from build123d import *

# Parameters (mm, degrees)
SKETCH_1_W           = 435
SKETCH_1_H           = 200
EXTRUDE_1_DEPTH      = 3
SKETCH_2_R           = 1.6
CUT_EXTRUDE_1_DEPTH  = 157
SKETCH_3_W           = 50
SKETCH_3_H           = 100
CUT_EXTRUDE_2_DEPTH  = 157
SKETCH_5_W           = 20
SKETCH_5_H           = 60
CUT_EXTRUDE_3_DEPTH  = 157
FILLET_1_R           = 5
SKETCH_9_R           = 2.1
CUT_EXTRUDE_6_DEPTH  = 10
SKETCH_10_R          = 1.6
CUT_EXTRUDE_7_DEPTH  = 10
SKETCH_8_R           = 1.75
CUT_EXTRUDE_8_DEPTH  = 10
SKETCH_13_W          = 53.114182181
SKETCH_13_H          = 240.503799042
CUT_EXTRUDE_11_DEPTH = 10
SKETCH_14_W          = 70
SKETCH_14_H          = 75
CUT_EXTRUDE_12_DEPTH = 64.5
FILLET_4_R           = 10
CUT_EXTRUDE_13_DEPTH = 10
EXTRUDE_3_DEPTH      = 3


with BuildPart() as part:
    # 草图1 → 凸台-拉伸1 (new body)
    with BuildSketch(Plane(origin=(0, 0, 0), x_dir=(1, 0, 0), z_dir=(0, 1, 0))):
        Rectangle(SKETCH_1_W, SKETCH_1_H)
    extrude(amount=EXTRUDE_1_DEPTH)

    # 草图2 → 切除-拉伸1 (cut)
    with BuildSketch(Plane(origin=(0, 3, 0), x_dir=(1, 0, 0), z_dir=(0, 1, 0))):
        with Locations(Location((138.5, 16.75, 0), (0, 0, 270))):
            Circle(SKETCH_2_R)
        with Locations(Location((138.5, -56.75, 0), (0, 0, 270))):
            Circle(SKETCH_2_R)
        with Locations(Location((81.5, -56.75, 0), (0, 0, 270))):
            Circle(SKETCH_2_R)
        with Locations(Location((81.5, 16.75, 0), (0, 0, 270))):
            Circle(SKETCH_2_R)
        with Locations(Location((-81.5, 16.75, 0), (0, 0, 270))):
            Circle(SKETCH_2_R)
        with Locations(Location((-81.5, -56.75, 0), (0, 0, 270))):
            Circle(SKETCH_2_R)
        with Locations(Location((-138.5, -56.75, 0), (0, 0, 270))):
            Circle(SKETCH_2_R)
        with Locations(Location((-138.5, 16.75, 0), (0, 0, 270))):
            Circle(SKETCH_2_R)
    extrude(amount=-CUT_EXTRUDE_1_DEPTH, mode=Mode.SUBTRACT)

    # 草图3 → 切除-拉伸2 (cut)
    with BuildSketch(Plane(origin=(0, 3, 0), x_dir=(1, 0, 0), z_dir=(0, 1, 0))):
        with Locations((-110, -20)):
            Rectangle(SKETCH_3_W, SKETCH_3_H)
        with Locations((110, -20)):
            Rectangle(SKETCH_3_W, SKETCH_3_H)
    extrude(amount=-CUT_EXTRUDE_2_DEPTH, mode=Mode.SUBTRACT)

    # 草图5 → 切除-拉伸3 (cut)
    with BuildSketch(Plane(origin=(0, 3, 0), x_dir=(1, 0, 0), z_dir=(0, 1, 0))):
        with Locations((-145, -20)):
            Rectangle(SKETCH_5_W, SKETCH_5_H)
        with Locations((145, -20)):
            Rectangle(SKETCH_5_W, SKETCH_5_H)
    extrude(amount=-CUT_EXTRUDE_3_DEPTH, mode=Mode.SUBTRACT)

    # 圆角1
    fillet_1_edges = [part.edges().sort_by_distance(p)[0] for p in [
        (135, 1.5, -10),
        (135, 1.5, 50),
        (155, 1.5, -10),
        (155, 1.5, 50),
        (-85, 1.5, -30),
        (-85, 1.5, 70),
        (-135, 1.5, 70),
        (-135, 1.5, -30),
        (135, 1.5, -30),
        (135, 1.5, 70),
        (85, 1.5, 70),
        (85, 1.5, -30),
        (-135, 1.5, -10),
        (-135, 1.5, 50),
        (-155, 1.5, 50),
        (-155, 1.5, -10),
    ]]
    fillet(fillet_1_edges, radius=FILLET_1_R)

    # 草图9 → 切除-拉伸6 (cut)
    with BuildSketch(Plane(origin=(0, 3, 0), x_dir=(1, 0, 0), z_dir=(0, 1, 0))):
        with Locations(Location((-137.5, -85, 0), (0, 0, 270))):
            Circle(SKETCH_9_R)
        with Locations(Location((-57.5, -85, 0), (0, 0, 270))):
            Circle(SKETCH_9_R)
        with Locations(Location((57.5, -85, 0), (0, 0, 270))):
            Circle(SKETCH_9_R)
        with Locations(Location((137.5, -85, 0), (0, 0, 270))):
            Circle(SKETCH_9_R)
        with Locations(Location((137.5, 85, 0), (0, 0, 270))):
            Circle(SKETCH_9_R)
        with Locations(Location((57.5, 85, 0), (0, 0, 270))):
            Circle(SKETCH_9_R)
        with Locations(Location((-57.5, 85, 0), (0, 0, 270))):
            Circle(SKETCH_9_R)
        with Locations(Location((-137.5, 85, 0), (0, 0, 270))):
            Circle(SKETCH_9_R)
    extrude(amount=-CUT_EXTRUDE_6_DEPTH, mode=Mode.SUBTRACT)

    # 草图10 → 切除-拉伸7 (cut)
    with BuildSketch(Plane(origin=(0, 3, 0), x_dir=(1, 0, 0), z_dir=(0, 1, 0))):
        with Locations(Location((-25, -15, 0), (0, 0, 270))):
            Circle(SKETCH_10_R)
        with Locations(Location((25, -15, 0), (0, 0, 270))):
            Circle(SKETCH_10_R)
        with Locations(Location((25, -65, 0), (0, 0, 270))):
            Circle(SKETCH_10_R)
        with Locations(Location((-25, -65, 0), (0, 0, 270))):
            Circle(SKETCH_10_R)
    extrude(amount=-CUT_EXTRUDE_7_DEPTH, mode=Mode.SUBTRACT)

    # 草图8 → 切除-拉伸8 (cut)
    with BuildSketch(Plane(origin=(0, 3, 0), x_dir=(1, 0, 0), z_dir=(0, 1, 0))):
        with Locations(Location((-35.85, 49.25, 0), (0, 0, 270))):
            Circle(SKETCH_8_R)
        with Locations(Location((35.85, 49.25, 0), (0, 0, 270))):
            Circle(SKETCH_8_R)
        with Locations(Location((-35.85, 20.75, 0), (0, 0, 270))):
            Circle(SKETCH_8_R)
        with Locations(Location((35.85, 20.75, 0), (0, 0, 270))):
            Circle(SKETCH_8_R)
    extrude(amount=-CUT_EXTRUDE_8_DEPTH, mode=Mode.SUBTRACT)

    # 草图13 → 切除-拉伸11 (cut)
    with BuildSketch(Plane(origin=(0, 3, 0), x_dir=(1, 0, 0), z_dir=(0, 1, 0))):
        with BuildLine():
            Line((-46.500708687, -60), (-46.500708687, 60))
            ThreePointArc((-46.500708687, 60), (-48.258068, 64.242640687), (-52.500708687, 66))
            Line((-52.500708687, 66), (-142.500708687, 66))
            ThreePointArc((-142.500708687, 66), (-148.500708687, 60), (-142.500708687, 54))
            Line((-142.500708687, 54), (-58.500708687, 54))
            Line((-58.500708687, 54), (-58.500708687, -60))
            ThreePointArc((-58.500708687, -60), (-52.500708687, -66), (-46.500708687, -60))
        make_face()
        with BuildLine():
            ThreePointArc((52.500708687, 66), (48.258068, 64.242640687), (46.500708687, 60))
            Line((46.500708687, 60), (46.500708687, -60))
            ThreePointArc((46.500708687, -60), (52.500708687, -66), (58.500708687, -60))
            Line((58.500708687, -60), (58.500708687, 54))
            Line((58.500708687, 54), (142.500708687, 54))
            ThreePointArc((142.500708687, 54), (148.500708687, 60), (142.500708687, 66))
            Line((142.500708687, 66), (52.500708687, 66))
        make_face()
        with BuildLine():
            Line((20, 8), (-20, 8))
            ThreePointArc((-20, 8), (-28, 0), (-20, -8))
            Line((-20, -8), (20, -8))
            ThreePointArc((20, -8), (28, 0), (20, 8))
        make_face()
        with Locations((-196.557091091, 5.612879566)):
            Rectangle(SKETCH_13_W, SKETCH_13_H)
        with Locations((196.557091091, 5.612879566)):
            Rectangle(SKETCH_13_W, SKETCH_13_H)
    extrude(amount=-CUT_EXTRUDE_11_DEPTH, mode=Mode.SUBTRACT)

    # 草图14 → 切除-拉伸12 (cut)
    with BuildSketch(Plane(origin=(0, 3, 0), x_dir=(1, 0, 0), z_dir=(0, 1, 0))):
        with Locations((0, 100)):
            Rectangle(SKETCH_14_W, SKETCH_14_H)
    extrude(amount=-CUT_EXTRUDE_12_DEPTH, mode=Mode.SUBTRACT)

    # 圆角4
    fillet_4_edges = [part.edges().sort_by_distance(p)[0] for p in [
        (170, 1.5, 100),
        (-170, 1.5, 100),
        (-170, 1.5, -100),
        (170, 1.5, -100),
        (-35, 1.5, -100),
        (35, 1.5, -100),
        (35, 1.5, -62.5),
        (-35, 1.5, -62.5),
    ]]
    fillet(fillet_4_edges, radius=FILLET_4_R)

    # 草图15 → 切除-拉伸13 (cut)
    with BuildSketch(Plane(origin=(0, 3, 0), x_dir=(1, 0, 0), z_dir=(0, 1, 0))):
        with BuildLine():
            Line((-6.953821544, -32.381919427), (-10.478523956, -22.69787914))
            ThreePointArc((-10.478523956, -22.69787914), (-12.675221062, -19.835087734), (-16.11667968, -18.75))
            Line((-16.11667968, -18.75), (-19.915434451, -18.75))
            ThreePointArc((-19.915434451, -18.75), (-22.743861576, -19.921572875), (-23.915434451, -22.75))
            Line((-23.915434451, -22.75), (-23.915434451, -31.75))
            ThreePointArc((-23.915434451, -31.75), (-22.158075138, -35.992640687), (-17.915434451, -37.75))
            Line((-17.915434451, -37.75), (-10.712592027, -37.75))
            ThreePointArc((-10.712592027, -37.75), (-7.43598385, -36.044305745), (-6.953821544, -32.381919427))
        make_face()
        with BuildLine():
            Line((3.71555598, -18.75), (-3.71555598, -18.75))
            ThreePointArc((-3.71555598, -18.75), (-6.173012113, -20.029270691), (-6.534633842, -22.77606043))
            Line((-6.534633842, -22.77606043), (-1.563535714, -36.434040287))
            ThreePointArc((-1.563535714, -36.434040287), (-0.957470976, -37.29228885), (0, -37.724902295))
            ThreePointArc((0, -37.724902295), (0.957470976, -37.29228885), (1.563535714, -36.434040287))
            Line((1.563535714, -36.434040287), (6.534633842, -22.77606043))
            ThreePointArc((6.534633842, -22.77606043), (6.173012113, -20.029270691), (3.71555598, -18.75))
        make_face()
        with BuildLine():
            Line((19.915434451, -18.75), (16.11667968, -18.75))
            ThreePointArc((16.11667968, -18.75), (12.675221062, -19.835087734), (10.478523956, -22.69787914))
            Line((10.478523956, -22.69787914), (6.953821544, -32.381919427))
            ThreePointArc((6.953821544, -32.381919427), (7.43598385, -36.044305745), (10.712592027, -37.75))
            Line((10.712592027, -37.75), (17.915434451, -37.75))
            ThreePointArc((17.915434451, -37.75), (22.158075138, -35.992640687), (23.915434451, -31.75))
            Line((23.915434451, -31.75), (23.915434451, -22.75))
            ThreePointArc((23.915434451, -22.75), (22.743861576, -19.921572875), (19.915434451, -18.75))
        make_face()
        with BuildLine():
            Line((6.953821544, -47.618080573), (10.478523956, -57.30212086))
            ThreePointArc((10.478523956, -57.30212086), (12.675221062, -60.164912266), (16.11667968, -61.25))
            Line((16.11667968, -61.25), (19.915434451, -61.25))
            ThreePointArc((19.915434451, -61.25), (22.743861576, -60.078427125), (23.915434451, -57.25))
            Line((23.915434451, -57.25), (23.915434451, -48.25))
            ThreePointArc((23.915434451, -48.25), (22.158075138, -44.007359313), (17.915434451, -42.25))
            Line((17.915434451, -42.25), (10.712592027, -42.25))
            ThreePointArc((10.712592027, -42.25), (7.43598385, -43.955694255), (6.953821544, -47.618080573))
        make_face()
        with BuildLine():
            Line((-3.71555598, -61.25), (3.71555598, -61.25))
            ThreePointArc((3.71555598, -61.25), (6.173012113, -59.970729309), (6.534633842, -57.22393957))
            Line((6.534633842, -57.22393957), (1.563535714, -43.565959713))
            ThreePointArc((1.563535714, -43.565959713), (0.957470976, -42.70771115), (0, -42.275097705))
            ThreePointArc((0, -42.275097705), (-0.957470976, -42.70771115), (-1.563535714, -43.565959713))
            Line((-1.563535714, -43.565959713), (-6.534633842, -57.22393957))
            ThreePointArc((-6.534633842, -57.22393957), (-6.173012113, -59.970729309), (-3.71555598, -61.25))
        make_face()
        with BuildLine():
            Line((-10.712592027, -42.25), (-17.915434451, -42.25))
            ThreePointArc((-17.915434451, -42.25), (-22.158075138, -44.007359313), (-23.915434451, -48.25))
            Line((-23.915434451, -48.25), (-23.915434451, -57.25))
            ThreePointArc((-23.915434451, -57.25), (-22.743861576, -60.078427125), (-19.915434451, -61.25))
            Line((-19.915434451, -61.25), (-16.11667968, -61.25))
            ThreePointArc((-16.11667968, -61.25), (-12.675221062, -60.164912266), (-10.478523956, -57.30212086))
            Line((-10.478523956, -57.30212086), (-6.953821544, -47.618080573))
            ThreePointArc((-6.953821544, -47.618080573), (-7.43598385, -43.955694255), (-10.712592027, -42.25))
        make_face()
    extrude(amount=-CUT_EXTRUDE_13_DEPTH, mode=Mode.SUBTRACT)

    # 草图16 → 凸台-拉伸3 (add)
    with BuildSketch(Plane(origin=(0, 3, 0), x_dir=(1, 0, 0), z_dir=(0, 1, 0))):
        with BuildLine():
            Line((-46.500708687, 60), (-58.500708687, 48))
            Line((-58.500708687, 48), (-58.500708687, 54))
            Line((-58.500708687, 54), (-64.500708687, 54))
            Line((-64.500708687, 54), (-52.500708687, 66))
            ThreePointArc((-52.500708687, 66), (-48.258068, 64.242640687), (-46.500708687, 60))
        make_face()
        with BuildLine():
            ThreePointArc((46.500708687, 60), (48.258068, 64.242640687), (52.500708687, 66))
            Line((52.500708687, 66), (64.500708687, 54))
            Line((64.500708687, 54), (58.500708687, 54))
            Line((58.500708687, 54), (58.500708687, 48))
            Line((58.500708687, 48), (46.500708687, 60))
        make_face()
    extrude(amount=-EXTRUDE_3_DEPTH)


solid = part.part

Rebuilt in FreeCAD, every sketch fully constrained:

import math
import FreeCAD as App
import Part
import Sketcher
Q = App.Units.Quantity


def edges_at(feature, points):
    """Names of the edges that pass closest to the given points."""
    edges = feature.Shape.Edges
    near = lambda p: min(range(len(edges)), key=lambda i: edges[i].distToShape(Part.Vertex(*p))[0])
    return sorted({f"Edge{near(p) + 1}" for p in points})


def add_polygon(sketch, points):
    """Adds a closed chain of lines whose ends are joined by coincident constraints."""
    first, n = sketch.GeometryCount, len(points)
    for a, b in zip(points, points[1:] + points[:1]):
        sketch.addGeometry(Part.LineSegment(App.Vector(*a, 0), App.Vector(*b, 0)), False)
    for i in range(n):
        sketch.addConstraint(Sketcher.Constraint("Coincident", first + i, 2, first + (i + 1) % n, 1))

doc = App.newDocument("Part")
body = doc.addObject("PartDesign::Body", "Body")

sketch1 = doc.addObject("Sketcher::SketchObject", "Sketch")
body.addObject(sketch1)
sketch1.AttachmentSupport = (doc.XZ_Plane, [""])
sketch1.MapMode = "FlatFace"
add_polygon(sketch1, [(-218, -100), (-218, 100), (218, 100), (218, -100)])
sketch1.addConstraint([
    Sketcher.Constraint("Vertical", 0),
    Sketcher.Constraint("Horizontal", 1),
    Sketcher.Constraint("Vertical", 2),
    Sketcher.Constraint("Horizontal", 3),
    Sketcher.Constraint("Symmetric", 0, 2, 2, 2, -1, 1),
    Sketcher.Constraint("DistanceX", 1, 1, 1, 2, 435.0),
    Sketcher.Constraint("DistanceY", 0, 1, 0, 2, 200.0),
])
pad1 = doc.addObject("PartDesign::Pad", "Pad")
body.addObject(pad1)
pad1.Profile = sketch1
pad1.Length = 3
pad1.Reversed = True

sketch2 = doc.addObject("Sketcher::SketchObject", "Sketch001")
body.addObject(sketch2)
sketch2.AttachmentSupport = (doc.XZ_Plane, [""])
sketch2.MapMode = "FlatFace"
sketch2.AttachmentOffset = App.Placement(App.Vector(0, 0, -3), App.Rotation())
sketch2.addGeometry([
    Part.Circle(App.Vector(138.5, -16.8, 0), App.Vector(0, 0, 1), 1.6),
    Part.Circle(App.Vector(138.5, 56.8, 0), App.Vector(0, 0, 1), 1.6),
    Part.Circle(App.Vector(81.5, 56.8, 0), App.Vector(0, 0, 1), 1.6),
    Part.Circle(App.Vector(81.5, -16.8, 0), App.Vector(0, 0, 1), 1.6),
    Part.Circle(App.Vector(-81.5, -16.8, 0), App.Vector(0, 0, 1), 1.6),
    Part.Circle(App.Vector(-81.5, 56.8, 0), App.Vector(0, 0, 1), 1.6),
    Part.Circle(App.Vector(-138.5, 56.8, 0), App.Vector(0, 0, 1), 1.6),
    Part.Circle(App.Vector(-138.5, -16.8, 0), App.Vector(0, 0, 1), 1.6),
], False)
sketch2.addConstraint([
    Sketcher.Constraint("Equal", 0, 1),
    Sketcher.Constraint("Equal", 1, 2),
    Sketcher.Constraint("Equal", 2, 3),
    Sketcher.Constraint("Equal", 3, 4),
    Sketcher.Constraint("Equal", 4, 5),
    Sketcher.Constraint("Equal", 5, 6),
    Sketcher.Constraint("Equal", 6, 7),
    Sketcher.Constraint("Symmetric", 3, 3, 4, 3, -2),
    Sketcher.Constraint("Symmetric", 2, 3, 5, 3, -2),
    Sketcher.Constraint("Symmetric", 1, 3, 6, 3, -2),
    Sketcher.Constraint("Symmetric", 0, 3, 7, 3, -2),
    Sketcher.Constraint("Horizontal", 1, 3, 2, 3),
    Sketcher.Constraint("Horizontal", 0, 3, 3, 3),
    Sketcher.Constraint("Vertical", 0, 3, 1, 3),
    Sketcher.Constraint("Vertical", 2, 3, 3, 3),
    Sketcher.Constraint("Diameter", 0, 3.2),
    Sketcher.Constraint("DistanceX", 2, 3, 1, 3, 57.0),
    Sketcher.Constraint("DistanceX", 4, 3, 3, 3, 163.0),
    Sketcher.Constraint("DistanceY", 0, 3, 1, 3, 73.5),
    Sketcher.Constraint("DistanceY", 0, 3, -1, 1, 16.75),
])
pocket1 = doc.addObject("PartDesign::Pocket", "Pocket")
body.addObject(pocket1)
pocket1.Profile = sketch2
pocket1.Length = 157
pocket1.Reversed = True

sketch3 = doc.addObject("Sketcher::SketchObject", "Sketch002")
body.addObject(sketch3)
sketch3.AttachmentSupport = (doc.XZ_Plane, [""])
sketch3.MapMode = "FlatFace"
sketch3.AttachmentOffset = App.Placement(App.Vector(0, 0, -3), App.Rotation())
add_polygon(sketch3, [(-135, -30), (-135, 70), (-85, 70), (-85, -30)])
add_polygon(sketch3, [(85, -30), (85, 70), (135, 70), (135, -30)])
sketch3.addConstraint([
    Sketcher.Constraint("Vertical", 0),
    Sketcher.Constraint("Horizontal", 1),
    Sketcher.Constraint("Vertical", 2),
    Sketcher.Constraint("Horizontal", 3),
    Sketcher.Constraint("Vertical", 4),
    Sketcher.Constraint("Horizontal", 5),
    Sketcher.Constraint("Vertical", 6),
    Sketcher.Constraint("Horizontal", 7),
    Sketcher.Constraint("Symmetric", 1, 2, 4, 2, -2),
    Sketcher.Constraint("Symmetric", 3, 2, 6, 2, -2),
    Sketcher.Constraint("DistanceX", 1, 1, 1, 2, 50.0),
    Sketcher.Constraint("DistanceY", 0, 1, 0, 2, 100.0),
    Sketcher.Constraint("DistanceX", 0, 2, -1, 1, 135.0),
    Sketcher.Constraint("DistanceY", -1, 1, 0, 2, 70.0),
])
pocket2 = doc.addObject("PartDesign::Pocket", "Pocket001")
body.addObject(pocket2)
pocket2.Profile = sketch3
pocket2.Length = 157
pocket2.Reversed = True

sketch4 = doc.addObject("Sketcher::SketchObject", "Sketch003")
body.addObject(sketch4)
sketch4.AttachmentSupport = (doc.XZ_Plane, [""])
sketch4.MapMode = "FlatFace"
sketch4.AttachmentOffset = App.Placement(App.Vector(0, 0, -3), App.Rotation())
add_polygon(sketch4, [(-155, -10), (-155, 50), (-135, 50), (-135, -10)])
add_polygon(sketch4, [(135, -10), (135, 50), (155, 50), (155, -10)])
sketch4.addConstraint([
    Sketcher.Constraint("Vertical", 0),
    Sketcher.Constraint("Horizontal", 1),
    Sketcher.Constraint("Vertical", 2),
    Sketcher.Constraint("Horizontal", 3),
    Sketcher.Constraint("Vertical", 4),
    Sketcher.Constraint("Horizontal", 5),
    Sketcher.Constraint("Vertical", 6),
    Sketcher.Constraint("Horizontal", 7),
    Sketcher.Constraint("Symmetric", 1, 2, 4, 2, -2),
    Sketcher.Constraint("Symmetric", 3, 2, 6, 2, -2),
    Sketcher.Constraint("DistanceX", 1, 1, 1, 2, 20.0),
    Sketcher.Constraint("DistanceY", 0, 1, 0, 2, 60.0),
    Sketcher.Constraint("DistanceX", 0, 2, -1, 1, 155.0),
    Sketcher.Constraint("DistanceY", -1, 1, 0, 2, 50.0),
])
pocket3 = doc.addObject("PartDesign::Pocket", "Pocket002")
body.addObject(pocket3)
pocket3.Profile = sketch4
pocket3.Length = 157
pocket3.Reversed = True
doc.recompute()

fillet = doc.addObject("PartDesign::Fillet", "Fillet")
body.addObject(fillet)
fillet.Base = (pocket3, edges_at(pocket3, [
    (135, 1.5, -10),
    (135, 1.5, 50),
    (155, 1.5, -10),
    (155, 1.5, 50),
    (-85, 1.5, -30),
    (-85, 1.5, 70),
    (-135, 1.5, 70),
    (-135, 1.5, -30),
    (135, 1.5, -30),
    (135, 1.5, 70),
    (85, 1.5, 70),
    (85, 1.5, -30),
    (-135, 1.5, -10),
    (-135, 1.5, 50),
    (-155, 1.5, 50),
    (-155, 1.5, -10),
]))
fillet.Radius = 5

sketch5 = doc.addObject("Sketcher::SketchObject", "Sketch004")
body.addObject(sketch5)
sketch5.AttachmentSupport = (doc.XZ_Plane, [""])
sketch5.MapMode = "FlatFace"
sketch5.AttachmentOffset = App.Placement(App.Vector(0, 0, -3), App.Rotation())
sketch5.addGeometry([
    Part.Circle(App.Vector(-137.5, 85, 0), App.Vector(0, 0, 1), 2.1),
    Part.Circle(App.Vector(-57.5, 85, 0), App.Vector(0, 0, 1), 2.1),
    Part.Circle(App.Vector(57.5, 85, 0), App.Vector(0, 0, 1), 2.1),
    Part.Circle(App.Vector(137.5, 85, 0), App.Vector(0, 0, 1), 2.1),
    Part.Circle(App.Vector(137.5, -85, 0), App.Vector(0, 0, 1), 2.1),
    Part.Circle(App.Vector(57.5, -85, 0), App.Vector(0, 0, 1), 2.1),
    Part.Circle(App.Vector(-57.5, -85, 0), App.Vector(0, 0, 1), 2.1),
    Part.Circle(App.Vector(-137.5, -85, 0), App.Vector(0, 0, 1), 2.1),
], False)
sketch5.addConstraint([
    Sketcher.Constraint("Equal", 0, 1),
    Sketcher.Constraint("Equal", 1, 2),
    Sketcher.Constraint("Equal", 2, 3),
    Sketcher.Constraint("Equal", 3, 4),
    Sketcher.Constraint("Equal", 4, 5),
    Sketcher.Constraint("Equal", 5, 6),
    Sketcher.Constraint("Equal", 6, 7),
    Sketcher.Constraint("Symmetric", 0, 3, 4, 3, -1, 1),
    Sketcher.Constraint("Symmetric", 1, 3, 5, 3, -1, 1),
    Sketcher.Constraint("Symmetric", 2, 3, 6, 3, -1, 1),
    Sketcher.Constraint("Symmetric", 3, 3, 7, 3, -1, 1),
    Sketcher.Constraint("Symmetric", 1, 3, 2, 3, -2),
    Sketcher.Constraint("Symmetric", 0, 3, 3, 3, -2),
    Sketcher.Constraint("Horizontal", 0, 3, 1, 3),
    Sketcher.Constraint("Diameter", 0, 4.2),
    Sketcher.Constraint("DistanceY", -1, 1, 0, 3, 85.0),
    Sketcher.Constraint("DistanceX", 0, 3, 1, 3, 80.0),
    Sketcher.Constraint("DistanceX", 1, 3, 2, 3, 115.0),
])
pocket4 = doc.addObject("PartDesign::Pocket", "Pocket003")
body.addObject(pocket4)
pocket4.Profile = sketch5
pocket4.Length = 10
pocket4.Reversed = True

sketch6 = doc.addObject("Sketcher::SketchObject", "Sketch005")
body.addObject(sketch6)
sketch6.AttachmentSupport = (doc.XZ_Plane, [""])
sketch6.MapMode = "FlatFace"
sketch6.AttachmentOffset = App.Placement(App.Vector(0, 0, -3), App.Rotation())
sketch6.addGeometry([
    Part.Circle(App.Vector(-25, 15, 0), App.Vector(0, 0, 1), 1.6),
    Part.Circle(App.Vector(25, 15, 0), App.Vector(0, 0, 1), 1.6),
    Part.Circle(App.Vector(25, 65, 0), App.Vector(0, 0, 1), 1.6),
    Part.Circle(App.Vector(-25, 65, 0), App.Vector(0, 0, 1), 1.6),
], False)
sketch6.addConstraint([
    Sketcher.Constraint("Equal", 0, 1),
    Sketcher.Constraint("Equal", 1, 2),
    Sketcher.Constraint("Equal", 2, 3),
    Sketcher.Constraint("Symmetric", 0, 3, 1, 3, -2),
    Sketcher.Constraint("Symmetric", 2, 3, 3, 3, -2),
    Sketcher.Constraint("Vertical", 1, 3, 2, 3),
    Sketcher.Constraint("Diameter", 0, 3.2),
    Sketcher.Constraint("DistanceX", 0, 3, -1, 1, 25.0),
    Sketcher.Constraint("DistanceY", -1, 1, 0, 3, 15.0),
    Sketcher.Constraint("DistanceY", -1, 1, 2, 3, 65.0),
])
pocket5 = doc.addObject("PartDesign::Pocket", "Pocket004")
body.addObject(pocket5)
pocket5.Profile = sketch6
pocket5.Length = 10
pocket5.Reversed = True

sketch7 = doc.addObject("Sketcher::SketchObject", "Sketch006")
body.addObject(sketch7)
sketch7.AttachmentSupport = (doc.XZ_Plane, [""])
sketch7.MapMode = "FlatFace"
sketch7.AttachmentOffset = App.Placement(App.Vector(0, 0, -3), App.Rotation())
sketch7.addGeometry([
    Part.Circle(App.Vector(-35.9, -49.2, 0), App.Vector(0, 0, 1), 1.8),
    Part.Circle(App.Vector(35.9, -49.2, 0), App.Vector(0, 0, 1), 1.8),
    Part.Circle(App.Vector(-35.9, -20.8, 0), App.Vector(0, 0, 1), 1.8),
    Part.Circle(App.Vector(35.9, -20.8, 0), App.Vector(0, 0, 1), 1.8),
], False)
sketch7.addConstraint([
    Sketcher.Constraint("Equal", 0, 1),
    Sketcher.Constraint("Equal", 1, 2),
    Sketcher.Constraint("Equal", 2, 3),
    Sketcher.Constraint("Symmetric", 0, 3, 1, 3, -2),
    Sketcher.Constraint("Symmetric", 2, 3, 3, 3, -2),
    Sketcher.Constraint("Vertical", 0, 3, 2, 3),
    Sketcher.Constraint("Diameter", 0, 3.5),
    Sketcher.Constraint("DistanceX", 0, 3, 1, 3, 71.7),
    Sketcher.Constraint("DistanceY", 0, 3, 2, 3, 28.5),
    Sketcher.Constraint("DistanceY", 0, 3, -1, 1, 49.25),
])
pocket6 = doc.addObject("PartDesign::Pocket", "Pocket005")
body.addObject(pocket6)
pocket6.Profile = sketch7
pocket6.Length = 10
pocket6.Reversed = True

sketch8 = doc.addObject("Sketcher::SketchObject", "Sketch007")
body.addObject(sketch8)
sketch8.AttachmentSupport = (doc.XZ_Plane, [""])
sketch8.MapMode = "FlatFace"
sketch8.AttachmentOffset = App.Placement(App.Vector(0, 0, -3), App.Rotation())
sketch8.addGeometry(Part.LineSegment(App.Vector(-47, 60, 0), App.Vector(-47, -60, 0)), False)
sketch8.addGeometry(Part.ArcOfCircle(Part.Circle(App.Vector(-53, -60, 0), App.Vector(0, 0, 1), 6), math.radians(-90), math.radians(0)), False)
sketch8.addGeometry(Part.LineSegment(App.Vector(-53, -66, 0), App.Vector(-143, -66, 0)), False)
sketch8.addGeometry(Part.ArcOfCircle(Part.Circle(App.Vector(-143, -60, 0), App.Vector(0, 0, 1), 6), math.radians(90), math.radians(270)), False)
sketch8.addGeometry(Part.LineSegment(App.Vector(-143, -54, 0), App.Vector(-59, -54, 0)), False)
sketch8.addGeometry(Part.LineSegment(App.Vector(-59, -54, 0), App.Vector(-59, 60, 0)), False)
sketch8.addGeometry(Part.ArcOfCircle(Part.Circle(App.Vector(-53, 60, 0), App.Vector(0, 0, 1), 6), math.radians(0), math.radians(180)), False)
sketch8.addGeometry(Part.ArcOfCircle(Part.Circle(App.Vector(53, -60, 0), App.Vector(0, 0, 1), 6), math.radians(180), math.radians(270)), False)
sketch8.addGeometry(Part.LineSegment(App.Vector(47, -60, 0), App.Vector(47, 60, 0)), False)
sketch8.addGeometry(Part.ArcOfCircle(Part.Circle(App.Vector(53, 60, 0), App.Vector(0, 0, 1), 6), math.radians(0), math.radians(180)), False)
sketch8.addGeometry(Part.LineSegment(App.Vector(59, 60, 0), App.Vector(59, -54, 0)), False)
sketch8.addGeometry(Part.LineSegment(App.Vector(59, -54, 0), App.Vector(143, -54, 0)), False)
sketch8.addGeometry(Part.ArcOfCircle(Part.Circle(App.Vector(143, -60, 0), App.Vector(0, 0, 1), 6), math.radians(-90), math.radians(90)), False)
sketch8.addGeometry(Part.LineSegment(App.Vector(143, -66, 0), App.Vector(53, -66, 0)), False)
sketch8.addGeometry(Part.LineSegment(App.Vector(20, -8, 0), App.Vector(-20, -8, 0)), False)
sketch8.addGeometry(Part.ArcOfCircle(Part.Circle(App.Vector(-20, 0, 0), App.Vector(0, 0, 1), 8), math.radians(90), math.radians(270)), False)
sketch8.addGeometry(Part.LineSegment(App.Vector(-20, 8, 0), App.Vector(20, 8, 0)), False)
sketch8.addGeometry(Part.ArcOfCircle(Part.Circle(App.Vector(20, 0, 0), App.Vector(0, 0, 1), 8), math.radians(-90), math.radians(90)), False)
add_polygon(sketch8, [(-223, -126), (-223, 115), (-170, 115), (-170, -126)])
add_polygon(sketch8, [(170, -126), (170, 115), (223, 115), (223, -126)])
sketch8.addConstraint([
    Sketcher.Constraint("Tangent", 0, 2, 1, 2),
    Sketcher.Constraint("Tangent", 1, 1, 2, 1),
    Sketcher.Constraint("Tangent", 2, 2, 3, 2),
    Sketcher.Constraint("Tangent", 3, 1, 4, 1),
    Sketcher.Constraint("Coincident", 4, 2, 5, 1),
    Sketcher.Constraint("Tangent", 5, 2, 6, 2),
    Sketcher.Constraint("Tangent", 6, 1, 0, 1),
    Sketcher.Constraint("Tangent", 7, 1, 8, 1),
    Sketcher.Constraint("Tangent", 8, 2, 9, 2),
    Sketcher.Constraint("Tangent", 9, 1, 10, 1),
    Sketcher.Constraint("Coincident", 10, 2, 11, 1),
    Sketcher.Constraint("Tangent", 11, 2, 12, 2),
    Sketcher.Constraint("Tangent", 12, 1, 13, 1),
    Sketcher.Constraint("Tangent", 13, 2, 7, 2),
    Sketcher.Constraint("Tangent", 14, 2, 15, 2),
    Sketcher.Constraint("Tangent", 15, 1, 16, 1),
    Sketcher.Constraint("Tangent", 16, 2, 17, 2),
    Sketcher.Constraint("Tangent", 17, 1, 14, 1),
    Sketcher.Constraint("Vertical", 0),
    Sketcher.Constraint("Horizontal", 2),
    Sketcher.Constraint("Horizontal", 4),
    Sketcher.Constraint("Vertical", 5),
    Sketcher.Constraint("Vertical", 8),
    Sketcher.Constraint("Vertical", 10),
    Sketcher.Constraint("Horizontal", 11),
    Sketcher.Constraint("Horizontal", 13),
    Sketcher.Constraint("Horizontal", 14),
    Sketcher.Constraint("Horizontal", 16),
    Sketcher.Constraint("Vertical", 18),
    Sketcher.Constraint("Horizontal", 19),
    Sketcher.Constraint("Vertical", 20),
    Sketcher.Constraint("Horizontal", 21),
    Sketcher.Constraint("Vertical", 22),
    Sketcher.Constraint("Horizontal", 23),
    Sketcher.Constraint("Vertical", 24),
    Sketcher.Constraint("Horizontal", 25),
    Sketcher.Constraint("Equal", 1, 3),
    Sketcher.Constraint("Equal", 3, 6),
    Sketcher.Constraint("Equal", 6, 7),
    Sketcher.Constraint("Equal", 7, 9),
    Sketcher.Constraint("Equal", 9, 12),
    Sketcher.Constraint("Symmetric", 6, 3, 7, 3, -1, 1),
    Sketcher.Constraint("Symmetric", 15, 3, 17, 3, -1, 1),
    Sketcher.Constraint("Symmetric", 3, 3, 12, 3, -2),
    Sketcher.Constraint("Symmetric", 19, 2, 22, 2, -2),
    Sketcher.Constraint("Symmetric", 21, 2, 24, 2, -2),
    Sketcher.Constraint("Horizontal", 6, 3, 9, 3),
    Sketcher.Constraint("Radius", 1, 6.0),
    Sketcher.Constraint("Radius", 15, 8.0),
    Sketcher.Constraint("DistanceX", 2, 2, 2, 1, 90.0),
    Sketcher.Constraint("DistanceX", 14, 2, 14, 1, 40.0),
    Sketcher.Constraint("DistanceY", 0, 2, 0, 1, 120.0),
    Sketcher.Constraint("DistanceX", 19, 2, -1, 1, 170.0),
    Sketcher.Constraint("DistanceY", 18, 1, 18, 2, 240.503799),
    Sketcher.Constraint("DistanceX", 19, 1, 19, 2, 53.114182),
    Sketcher.Constraint("DistanceX", 1, 3, -1, 1, 52.500709),
    Sketcher.Constraint("DistanceY", -1, 1, 18, 2, 114.63902),
])
pocket7 = doc.addObject("PartDesign::Pocket", "Pocket006")
body.addObject(pocket7)
pocket7.Profile = sketch8
pocket7.Length = 10
pocket7.Reversed = True

sketch9 = doc.addObject("Sketcher::SketchObject", "Sketch008")
body.addObject(sketch9)
sketch9.AttachmentSupport = (doc.XZ_Plane, [""])
sketch9.MapMode = "FlatFace"
sketch9.AttachmentOffset = App.Placement(App.Vector(0, 0, -3), App.Rotation())
add_polygon(sketch9, [(-35, -138), (-35, -62), (35, -62), (35, -138)])
sketch9.addConstraint([
    Sketcher.Constraint("Vertical", 0),
    Sketcher.Constraint("Horizontal", 1),
    Sketcher.Constraint("Vertical", 2),
    Sketcher.Constraint("Horizontal", 3),
    Sketcher.Constraint("DistanceX", 1, 1, 1, 2, 70.0),
    Sketcher.Constraint("DistanceY", 0, 1, 0, 2, 75.0),
    Sketcher.Constraint("DistanceX", 0, 2, -1, 1, 35.0),
    Sketcher.Constraint("DistanceY", 0, 2, -1, 1, 62.5),
])
pocket8 = doc.addObject("PartDesign::Pocket", "Pocket007")
body.addObject(pocket8)
pocket8.Profile = sketch9
pocket8.Length = 64.5
pocket8.Reversed = True
doc.recompute()

fillet2 = doc.addObject("PartDesign::Fillet", "Fillet001")
body.addObject(fillet2)
fillet2.Base = (pocket8, edges_at(pocket8, [
    (170, 1.5, 100),
    (-170, 1.5, 100),
    (-170, 1.5, -100),
    (170, 1.5, -100),
    (-35, 1.5, -100),
    (35, 1.5, -100),
    (35, 1.5, -62.5),
    (-35, 1.5, -62.5),
]))
fillet2.Radius = 10

sketch10 = doc.addObject("Sketcher::SketchObject", "Sketch009")
body.addObject(sketch10)
sketch10.AttachmentSupport = (doc.XZ_Plane, [""])
sketch10.MapMode = "FlatFace"
sketch10.AttachmentOffset = App.Placement(App.Vector(0, 0, -3), App.Rotation())
sketch10.addGeometry([
    Part.LineSegment(App.Vector(-7, 32.4, 0), App.Vector(-10.5, 22.7, 0)),
    Part.ArcOfCircle(Part.Circle(App.Vector(-16.1, 24.7, 0), App.Vector(0, 0, 1), 6), math.radians(-90), math.radians(-20)),
    Part.LineSegment(App.Vector(-16.1, 18.8, 0), App.Vector(-19.9, 18.8, 0)),
    Part.ArcOfCircle(Part.Circle(App.Vector(-19.9, 22.7, 0), App.Vector(0, 0, 1), 4), math.radians(180), math.radians(270)),
    Part.LineSegment(App.Vector(-23.9, 22.8, 0), App.Vector(-23.9, 31.8, 0)),
    Part.ArcOfCircle(Part.Circle(App.Vector(-17.9, 31.8, 0), App.Vector(0, 0, 1), 6), math.radians(90), math.radians(180)),
    Part.LineSegment(App.Vector(-17.9, 37.8, 0), App.Vector(-10.7, 37.8, 0)),
    Part.ArcOfCircle(Part.Circle(App.Vector(-10.7, 33.8, 0), App.Vector(0, 0, 1), 4), math.radians(-20), math.radians(90)),
    Part.LineSegment(App.Vector(3.7, 18.8, 0), App.Vector(-3.7, 18.8, 0)),
    Part.ArcOfCircle(Part.Circle(App.Vector(-3.7, 21.8, 0), App.Vector(0, 0, 1), 3), math.radians(160), math.radians(270)),
    Part.LineSegment(App.Vector(-6.5, 22.8, 0), App.Vector(-1.6, 36.4, 0)),
    Part.ArcOfCircle(Part.Circle(App.Vector(0.3, 35.8, 0), App.Vector(0, 0, 1), 2), math.radians(99), math.radians(160)),
    Part.ArcOfCircle(Part.Circle(App.Vector(-0.3, 35.8, 0), App.Vector(0, 0, 1), 2), math.radians(20), math.radians(81)),
    Part.LineSegment(App.Vector(1.6, 36.4, 0), App.Vector(6.5, 22.8, 0)),
    Part.ArcOfCircle(Part.Circle(App.Vector(3.7, 21.8, 0), App.Vector(0, 0, 1), 3), math.radians(-90), math.radians(20)),
    Part.LineSegment(App.Vector(19.9, 18.8, 0), App.Vector(16.1, 18.8, 0)),
    Part.ArcOfCircle(Part.Circle(App.Vector(16.1, 24.7, 0), App.Vector(0, 0, 1), 6), math.radians(-160), math.radians(-90)),
    Part.LineSegment(App.Vector(10.5, 22.7, 0), App.Vector(7, 32.4, 0)),
    Part.ArcOfCircle(Part.Circle(App.Vector(10.7, 33.8, 0), App.Vector(0, 0, 1), 4), math.radians(90), math.radians(200)),
    Part.LineSegment(App.Vector(10.7, 37.8, 0), App.Vector(17.9, 37.8, 0)),
    Part.ArcOfCircle(Part.Circle(App.Vector(17.9, 31.8, 0), App.Vector(0, 0, 1), 6), math.radians(0), math.radians(90)),
    Part.LineSegment(App.Vector(23.9, 31.8, 0), App.Vector(23.9, 22.8, 0)),
    Part.ArcOfCircle(Part.Circle(App.Vector(19.9, 22.7, 0), App.Vector(0, 0, 1), 4), math.radians(-90), math.radians(0)),
    Part.LineSegment(App.Vector(7, 47.6, 0), App.Vector(10.5, 57.3, 0)),
    Part.ArcOfCircle(Part.Circle(App.Vector(16.1, 55.3, 0), App.Vector(0, 0, 1), 6), math.radians(90), math.radians(160)),
    Part.LineSegment(App.Vector(16.1, 61.2, 0), App.Vector(19.9, 61.2, 0)),
    Part.ArcOfCircle(Part.Circle(App.Vector(19.9, 57.3, 0), App.Vector(0, 0, 1), 4), math.radians(0), math.radians(90)),
    Part.LineSegment(App.Vector(23.9, 57.2, 0), App.Vector(23.9, 48.2, 0)),
    Part.ArcOfCircle(Part.Circle(App.Vector(17.9, 48.2, 0), App.Vector(0, 0, 1), 6), math.radians(-90), math.radians(0)),
    Part.LineSegment(App.Vector(17.9, 42.2, 0), App.Vector(10.7, 42.2, 0)),
    Part.ArcOfCircle(Part.Circle(App.Vector(10.7, 46.2, 0), App.Vector(0, 0, 1), 4), math.radians(160), math.radians(270)),
    Part.LineSegment(App.Vector(-3.7, 61.2, 0), App.Vector(3.7, 61.2, 0)),
    Part.ArcOfCircle(Part.Circle(App.Vector(3.7, 58.2, 0), App.Vector(0, 0, 1), 3), math.radians(-20), math.radians(90)),
    Part.LineSegment(App.Vector(6.5, 57.2, 0), App.Vector(1.6, 43.6, 0)),
    Part.ArcOfCircle(Part.Circle(App.Vector(-0.3, 44.2, 0), App.Vector(0, 0, 1), 2), math.radians(-81), math.radians(-20)),
    Part.ArcOfCircle(Part.Circle(App.Vector(0.3, 44.2, 0), App.Vector(0, 0, 1), 2), math.radians(-160), math.radians(-99)),
    Part.LineSegment(App.Vector(-1.6, 43.6, 0), App.Vector(-6.5, 57.2, 0)),
    Part.ArcOfCircle(Part.Circle(App.Vector(-3.7, 58.2, 0), App.Vector(0, 0, 1), 3), math.radians(90), math.radians(200)),
    Part.LineSegment(App.Vector(-10.7, 42.2, 0), App.Vector(-17.9, 42.2, 0)),
    Part.ArcOfCircle(Part.Circle(App.Vector(-17.9, 48.2, 0), App.Vector(0, 0, 1), 6), math.radians(180), math.radians(270)),
    Part.LineSegment(App.Vector(-23.9, 48.2, 0), App.Vector(-23.9, 57.2, 0)),
    Part.ArcOfCircle(Part.Circle(App.Vector(-19.9, 57.3, 0), App.Vector(0, 0, 1), 4), math.radians(90), math.radians(180)),
    Part.LineSegment(App.Vector(-19.9, 61.2, 0), App.Vector(-16.1, 61.2, 0)),
    Part.ArcOfCircle(Part.Circle(App.Vector(-16.1, 55.3, 0), App.Vector(0, 0, 1), 6), math.radians(20), math.radians(90)),
    Part.LineSegment(App.Vector(-10.5, 57.3, 0), App.Vector(-7, 47.6, 0)),
    Part.ArcOfCircle(Part.Circle(App.Vector(-10.7, 46.2, 0), App.Vector(0, 0, 1), 4), math.radians(-90), math.radians(20)),
], False)
sketch10.addConstraint([
    Sketcher.Constraint("Tangent", 0, 2, 1, 2),
    Sketcher.Constraint("Tangent", 1, 1, 2, 1),
    Sketcher.Constraint("Tangent", 2, 2, 3, 2),
    Sketcher.Constraint("Tangent", 3, 1, 4, 1),
    Sketcher.Constraint("Tangent", 4, 2, 5, 2),
    Sketcher.Constraint("Tangent", 5, 1, 6, 1),
    Sketcher.Constraint("Tangent", 6, 2, 7, 2),
    Sketcher.Constraint("Tangent", 7, 1, 0, 1),
    Sketcher.Constraint("Tangent", 8, 2, 9, 2),
    Sketcher.Constraint("Tangent", 9, 1, 10, 1),
    Sketcher.Constraint("Tangent", 10, 2, 11, 2),
    Sketcher.Constraint("Coincident", 11, 1, 12, 2),
    Sketcher.Constraint("Tangent", 12, 1, 13, 1),
    Sketcher.Constraint("Tangent", 13, 2, 14, 2),
    Sketcher.Constraint("Tangent", 14, 1, 8, 1),
    Sketcher.Constraint("Tangent", 15, 2, 16, 2),
    Sketcher.Constraint("Tangent", 16, 1, 17, 1),
    Sketcher.Constraint("Tangent", 17, 2, 18, 2),
    Sketcher.Constraint("Tangent", 18, 1, 19, 1),
    Sketcher.Constraint("Tangent", 19, 2, 20, 2),
    Sketcher.Constraint("Tangent", 20, 1, 21, 1),
    Sketcher.Constraint("Tangent", 21, 2, 22, 2),
    Sketcher.Constraint("Tangent", 22, 1, 15, 1),
    Sketcher.Constraint("Tangent", 23, 2, 24, 2),
    Sketcher.Constraint("Tangent", 24, 1, 25, 1),
    Sketcher.Constraint("Tangent", 25, 2, 26, 2),
    Sketcher.Constraint("Tangent", 26, 1, 27, 1),
    Sketcher.Constraint("Tangent", 27, 2, 28, 2),
    Sketcher.Constraint("Tangent", 28, 1, 29, 1),
    Sketcher.Constraint("Tangent", 29, 2, 30, 2),
    Sketcher.Constraint("Tangent", 30, 1, 23, 1),
    Sketcher.Constraint("Tangent", 31, 2, 32, 2),
    Sketcher.Constraint("Tangent", 32, 1, 33, 1),
    Sketcher.Constraint("Tangent", 33, 2, 34, 2),
    Sketcher.Constraint("Coincident", 34, 1, 35, 2),
    Sketcher.Constraint("Tangent", 35, 1, 36, 1),
    Sketcher.Constraint("Tangent", 36, 2, 37, 2),
    Sketcher.Constraint("Tangent", 37, 1, 31, 1),
    Sketcher.Constraint("Tangent", 38, 2, 39, 2),
    Sketcher.Constraint("Tangent", 39, 1, 40, 1),
    Sketcher.Constraint("Tangent", 40, 2, 41, 2),
    Sketcher.Constraint("Tangent", 41, 1, 42, 1),
    Sketcher.Constraint("Tangent", 42, 2, 43, 2),
    Sketcher.Constraint("Tangent", 43, 1, 44, 1),
    Sketcher.Constraint("Tangent", 44, 2, 45, 2),
    Sketcher.Constraint("Tangent", 45, 1, 38, 1),
    Sketcher.Constraint("Horizontal", 2),
    Sketcher.Constraint("Vertical", 4),
    Sketcher.Constraint("Horizontal", 6),
    Sketcher.Constraint("Horizontal", 8),
    Sketcher.Constraint("Horizontal", 15),
    Sketcher.Constraint("Horizontal", 19),
    Sketcher.Constraint("Vertical", 21),
    Sketcher.Constraint("Horizontal", 25),
    Sketcher.Constraint("Vertical", 27),
    Sketcher.Constraint("Horizontal", 29),
    Sketcher.Constraint("Horizontal", 31),
    Sketcher.Constraint("Horizontal", 38),
    Sketcher.Constraint("Vertical", 40),
    Sketcher.Constraint("Horizontal", 42),
    Sketcher.Constraint("Equal", 1, 5),
    Sketcher.Constraint("Equal", 3, 7),
    Sketcher.Constraint("Equal", 11, 12),
    Sketcher.Constraint("Equal", 9, 14),
    Sketcher.Constraint("Equal", 5, 16),
    Sketcher.Constraint("Equal", 7, 18),
    Sketcher.Constraint("Equal", 16, 20),
    Sketcher.Constraint("Equal", 18, 22),
    Sketcher.Constraint("Equal", 20, 24),
    Sketcher.Constraint("Equal", 22, 26),
    Sketcher.Constraint("Equal", 24, 28),
    Sketcher.Constraint("Equal", 26, 30),
    Sketcher.Constraint("Equal", 14, 32),
    Sketcher.Constraint("Equal", 12, 34),
    Sketcher.Constraint("Equal", 34, 35),
    Sketcher.Constraint("Equal", 32, 37),
    Sketcher.Constraint("Equal", 28, 39),
    Sketcher.Constraint("Equal", 30, 41),
    Sketcher.Constraint("Equal", 39, 43),
    Sketcher.Constraint("Equal", 41, 45),
    Sketcher.Constraint("Symmetric", 11, 3, 12, 3, -2),
    Sketcher.Constraint("Symmetric", 1, 3, 16, 3, -2),
    Sketcher.Constraint("Symmetric", 7, 3, 18, 3, -2),
    Sketcher.Constraint("Symmetric", 34, 3, 35, 3, -2),
    Sketcher.Constraint("Symmetric", 28, 3, 39, 3, -2),
    Sketcher.Constraint("Symmetric", 24, 3, 43, 3, -2),
    Sketcher.Constraint("Parallel", 0, 10),
    Sketcher.Constraint("Parallel", 13, 17),
    Sketcher.Constraint("Parallel", 10, 23),
    Sketcher.Constraint("Parallel", 23, 33),
    Sketcher.Constraint("Parallel", 17, 36),
    Sketcher.Constraint("Parallel", 36, 44),
    Sketcher.Constraint("Horizontal", 2, 2, 8, 2),
    Sketcher.Constraint("Horizontal", 25, 2, 31, 2),
    Sketcher.Constraint("Vertical", 16, 3, 24, 3),
    Sketcher.Constraint("Vertical", 22, 3, 26, 3),
    Sketcher.Constraint("Vertical", 18, 3, 30, 3),
    Sketcher.Constraint("Vertical", 14, 3, 32, 3),
    Sketcher.Constraint("Vertical", 12, 3, 34, 3),
    Sketcher.Constraint("Vertical", 5, 3, 39, 3),
    Sketcher.Constraint("Radius", 1, 6.0),
    Sketcher.Constraint("Radius", 3, 4.0),
    Sketcher.Constraint("Radius", 9, 3.0),
    Sketcher.Constraint("Radius", 11, 2.0),
    Sketcher.Constraint("DistanceY", 4, 1, 4, 2, 9.0),
    Sketcher.Constraint("Angle", 0, Q("-110 deg")),
    Sketcher.Constraint("DistanceY", -1, 1, 1, 3, 24.75),
    Sketcher.Constraint("DistanceY", -1, 1, 11, 3, 35.75),
    Sketcher.Constraint("DistanceY", -1, 1, 24, 3, 55.25),
    Sketcher.Constraint("DistanceX", 8, 2, 8, 1, 7.431112),
    Sketcher.Constraint("DistanceX", 2, 2, 2, 1, 3.798755),
    Sketcher.Constraint("DistanceX", 1, 3, -1, 1, 16.11668),
])
pocket9 = doc.addObject("PartDesign::Pocket", "Pocket008")
body.addObject(pocket9)
pocket9.Profile = sketch10
pocket9.Length = 10
pocket9.Reversed = True

sketch11 = doc.addObject("Sketcher::SketchObject", "Sketch010")
body.addObject(sketch11)
sketch11.AttachmentSupport = (doc.XZ_Plane, [""])
sketch11.MapMode = "FlatFace"
sketch11.AttachmentOffset = App.Placement(App.Vector(0, 0, -3), App.Rotation())
sketch11.addGeometry([
    Part.LineSegment(App.Vector(-59, -48, 0), App.Vector(-47, -60, 0)),
    Part.ArcOfCircle(Part.Circle(App.Vector(-53, -60, 0), App.Vector(0, 0, 1), 6), math.radians(-90), math.radians(0)),
    Part.LineSegment(App.Vector(-53, -66, 0), App.Vector(-65, -54, 0)),
    Part.LineSegment(App.Vector(-65, -54, 0), App.Vector(-59, -54, 0)),
    Part.LineSegment(App.Vector(-59, -54, 0), App.Vector(-59, -48, 0)),
    Part.ArcOfCircle(Part.Circle(App.Vector(53, -60, 0), App.Vector(0, 0, 1), 6), math.radians(180), math.radians(270)),
    Part.LineSegment(App.Vector(47, -60, 0), App.Vector(59, -48, 0)),
    Part.LineSegment(App.Vector(59, -48, 0), App.Vector(59, -54, 0)),
    Part.LineSegment(App.Vector(59, -54, 0), App.Vector(65, -54, 0)),
    Part.LineSegment(App.Vector(65, -54, 0), App.Vector(53, -66, 0)),
], False)
sketch11.addConstraint([
    Sketcher.Constraint("Coincident", 0, 2, 1, 2),
    Sketcher.Constraint("Coincident", 1, 1, 2, 1),
    Sketcher.Constraint("Coincident", 2, 2, 3, 1),
    Sketcher.Constraint("Coincident", 3, 2, 4, 1),
    Sketcher.Constraint("Coincident", 4, 2, 0, 1),
    Sketcher.Constraint("Coincident", 5, 1, 6, 1),
    Sketcher.Constraint("Coincident", 6, 2, 7, 1),
    Sketcher.Constraint("Coincident", 7, 2, 8, 1),
    Sketcher.Constraint("Coincident", 8, 2, 9, 1),
    Sketcher.Constraint("Coincident", 9, 2, 5, 2),
    Sketcher.Constraint("Horizontal", 3),
    Sketcher.Constraint("Vertical", 4),
    Sketcher.Constraint("Vertical", 7),
    Sketcher.Constraint("Horizontal", 8),
    Sketcher.Constraint("Equal", 1, 5),
    Sketcher.Constraint("Symmetric", 1, 3, 5, 3, -2),
    Sketcher.Constraint("Symmetric", 4, 2, 6, 2, -2),
    Sketcher.Constraint("Symmetric", 2, 2, 8, 2, -2),
    Sketcher.Constraint("Parallel", 0, 2),
    Sketcher.Constraint("Perpendicular", 2, 6),
    Sketcher.Constraint("Parallel", 6, 9),
    Sketcher.Constraint("Horizontal", 5, 3, 0, 2),
    Sketcher.Constraint("Horizontal", 0, 2, 5, 1),
    Sketcher.Constraint("Vertical", 5, 3, 9, 2),
    Sketcher.Constraint("Equal", 8, 4),
    Sketcher.Constraint("Radius", 1, 6.0),
    Sketcher.Constraint("DistanceY", 1, 3, -1, 1, 60.0),
    Sketcher.Constraint("DistanceY", 2, 2, -1, 1, 54.0),
    Sketcher.Constraint("DistanceX", 1, 3, -1, 1, 52.500709),
])
pad2 = doc.addObject("PartDesign::Pad", "Pad001")
body.addObject(pad2)
pad2.Profile = sketch11
pad2.Length = 3

doc.recompute()
